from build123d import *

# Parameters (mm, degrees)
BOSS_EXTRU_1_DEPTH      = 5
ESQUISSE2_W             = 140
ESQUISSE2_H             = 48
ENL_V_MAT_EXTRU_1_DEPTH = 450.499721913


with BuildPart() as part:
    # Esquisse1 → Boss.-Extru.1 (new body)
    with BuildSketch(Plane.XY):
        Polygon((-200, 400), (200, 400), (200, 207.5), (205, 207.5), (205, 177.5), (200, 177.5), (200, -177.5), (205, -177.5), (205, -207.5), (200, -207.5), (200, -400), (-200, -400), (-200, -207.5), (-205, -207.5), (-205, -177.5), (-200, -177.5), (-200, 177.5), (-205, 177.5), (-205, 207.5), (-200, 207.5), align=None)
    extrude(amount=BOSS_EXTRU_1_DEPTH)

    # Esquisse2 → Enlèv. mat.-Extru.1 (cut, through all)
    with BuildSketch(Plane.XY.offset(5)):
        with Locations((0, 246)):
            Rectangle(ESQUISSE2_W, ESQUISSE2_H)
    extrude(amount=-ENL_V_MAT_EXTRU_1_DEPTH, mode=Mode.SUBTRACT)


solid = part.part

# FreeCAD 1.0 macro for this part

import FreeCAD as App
import Part
import Sketcher
from FreeCAD import Vector


def add_polygon(sketch, points):
    """Adds a closed chain of lines whose ends are joined by coincident constraints."""
    first, n = sketch.GeometryCount, len(points)
    for a, b in zip(points, points[1:] + points[:1]):
        sketch.addGeometry(Part.LineSegment(App.Vector(*a, 0), App.Vector(*b, 0)), False)
    for i in range(n):
        sketch.addConstraint(Sketcher.Constraint("Coincident", first + i, 2, first + (i + 1) % n, 1))

doc = App.newDocument("Part")
body = doc.addObject("PartDesign::Body", "Body")

sketch1 = body.newObject("Sketcher::SketchObject", "Sketch")
sketch1.AttachmentSupport = (doc.getObject("XY_Plane"), [""])
sketch1.MapMode = "FlatFace"
add_polygon(sketch1, [(200, 400), (-200, 400), (-200, 207.5), (-205, 207.5), (-205, 177.5), (-200, 177.5), (-200, -177.5), (-205, -177.5), (-205, -207.5), (-200, -207.5), (-200, -400), (200, -400), (200, -207.5), (205, -207.5), (205, -177.5), (200, -177.5), (200, 177.5), (205, 177.5), (205, 207.5), (200, 207.5)])
sketch1.addConstraint(Sketcher.Constraint("Horizontal", 0))
sketch1.addConstraint(Sketcher.Constraint("Vertical", 1))
sketch1.addConstraint(Sketcher.Constraint("Horizontal", 2))
sketch1.addConstraint(Sketcher.Constraint("Vertical", 3))
sketch1.addConstraint(Sketcher.Constraint("Horizontal", 4))
sketch1.addConstraint(Sketcher.Constraint("Vertical", 5))
sketch1.addConstraint(Sketcher.Constraint("Horizontal", 6))
sketch1.addConstraint(Sketcher.Constraint("Vertical", 7))
sketch1.addConstraint(Sketcher.Constraint("Horizontal", 8))
sketch1.addConstraint(Sketcher.Constraint("Vertical", 9))
sketch1.addConstraint(Sketcher.Constraint("Horizontal", 10))
sketch1.addConstraint(Sketcher.Constraint("Vertical", 11))
sketch1.addConstraint(Sketcher.Constraint("Horizontal", 12))
sketch1.addConstraint(Sketcher.Constraint("Vertical", 13))
sketch1.addConstraint(Sketcher.Constraint("Horizontal", 14))
sketch1.addConstraint(Sketcher.Constraint("Vertical", 15))
sketch1.addConstraint(Sketcher.Constraint("Horizontal", 16))
sketch1.addConstraint(Sketcher.Constraint("Vertical", 17))
sketch1.addConstraint(Sketcher.Constraint("Horizontal", 18))
sketch1.addConstraint(Sketcher.Constraint("Vertical", 19))
sketch1.addConstraint(Sketcher.Constraint("Symmetric", 0, 2, 10, 2, -1, 1))
sketch1.addConstraint(Sketcher.Constraint("Symmetric", 2, 2, 12, 2, -1, 1))
sketch1.addConstraint(Sketcher.Constraint("Symmetric", 4, 2, 14, 2, -1, 1))
sketch1.addConstraint(Sketcher.Constraint("Symmetric", 6, 2, 16, 2, -1, 1))
sketch1.addConstraint(Sketcher.Constraint("Symmetric", 8, 2, 18, 2, -1, 1))
sketch1.addConstraint(Sketcher.Constraint("Symmetric", 8, 2, 11, 2, -2))
sketch1.addConstraint(Sketcher.Constraint("Symmetric", 6, 2, 13, 2, -2))
sketch1.addConstraint(Sketcher.Constraint("Vertical", 1, 2, 4, 2))
sketch1.addConstraint(Sketcher.Constraint("DistanceX", 0, 2, 0, 1, 400.0))
sketch1.addConstraint(Sketcher.Constraint("DistanceX", 2, 2, 2, 1, 5.0))
sketch1.addConstraint(Sketcher.Constraint("DistanceY", 3, 2, 3, 1, 30.0))
sketch1.addConstraint(Sketcher.Constraint("DistanceY", 5, 2, 5, 1, 355.0))
sketch1.addConstraint(Sketcher.Constraint("DistanceY", 1, 2, 1, 1, 192.5))
pad1 = body.newObject("PartDesign::Pad", "Pad")
pad1.Profile = sketch1
pad1.Length = 5

sketch2 = body.newObject("Sketcher::SketchObject", "Sketch001")
sketch2.AttachmentSupport = (doc.getObject("XY_Plane"), [""])
sketch2.MapMode = "FlatFace"
sketch2.AttachmentOffset = App.Placement(Vector(0, 0, 5), App.Rotation())
add_polygon(sketch2, [(-70, 270), (-70, 222), (70, 222), (70, 270)])
sketch2.addConstraint(Sketcher.Constraint("Vertical", 0))
sketch2.addConstraint(Sketcher.Constraint("Horizontal", 1))
sketch2.addConstraint(Sketcher.Constraint("Vertical", 2))
sketch2.addConstraint(Sketcher.Constraint("Horizontal", 3))
sketch2.addConstraint(Sketcher.Constraint("DistanceX", 1, 1, 1, 2, 140.0))
sketch2.addConstraint(Sketcher.Constraint("DistanceY", 0, 2, 0, 1, 48.0))
sketch2.addConstraint(Sketcher.Constraint("DistanceX", 0, 2, -1, 1, 70.0))
sketch2.addConstraint(Sketcher.Constraint("DistanceY", -1, 1, 0, 2, 222.0))
pocket1 = body.newObject("PartDesign::Pocket", "Pocket")
pocket1.Profile = sketch2
pocket1.Type = "ThroughAll"

doc.recompute()
